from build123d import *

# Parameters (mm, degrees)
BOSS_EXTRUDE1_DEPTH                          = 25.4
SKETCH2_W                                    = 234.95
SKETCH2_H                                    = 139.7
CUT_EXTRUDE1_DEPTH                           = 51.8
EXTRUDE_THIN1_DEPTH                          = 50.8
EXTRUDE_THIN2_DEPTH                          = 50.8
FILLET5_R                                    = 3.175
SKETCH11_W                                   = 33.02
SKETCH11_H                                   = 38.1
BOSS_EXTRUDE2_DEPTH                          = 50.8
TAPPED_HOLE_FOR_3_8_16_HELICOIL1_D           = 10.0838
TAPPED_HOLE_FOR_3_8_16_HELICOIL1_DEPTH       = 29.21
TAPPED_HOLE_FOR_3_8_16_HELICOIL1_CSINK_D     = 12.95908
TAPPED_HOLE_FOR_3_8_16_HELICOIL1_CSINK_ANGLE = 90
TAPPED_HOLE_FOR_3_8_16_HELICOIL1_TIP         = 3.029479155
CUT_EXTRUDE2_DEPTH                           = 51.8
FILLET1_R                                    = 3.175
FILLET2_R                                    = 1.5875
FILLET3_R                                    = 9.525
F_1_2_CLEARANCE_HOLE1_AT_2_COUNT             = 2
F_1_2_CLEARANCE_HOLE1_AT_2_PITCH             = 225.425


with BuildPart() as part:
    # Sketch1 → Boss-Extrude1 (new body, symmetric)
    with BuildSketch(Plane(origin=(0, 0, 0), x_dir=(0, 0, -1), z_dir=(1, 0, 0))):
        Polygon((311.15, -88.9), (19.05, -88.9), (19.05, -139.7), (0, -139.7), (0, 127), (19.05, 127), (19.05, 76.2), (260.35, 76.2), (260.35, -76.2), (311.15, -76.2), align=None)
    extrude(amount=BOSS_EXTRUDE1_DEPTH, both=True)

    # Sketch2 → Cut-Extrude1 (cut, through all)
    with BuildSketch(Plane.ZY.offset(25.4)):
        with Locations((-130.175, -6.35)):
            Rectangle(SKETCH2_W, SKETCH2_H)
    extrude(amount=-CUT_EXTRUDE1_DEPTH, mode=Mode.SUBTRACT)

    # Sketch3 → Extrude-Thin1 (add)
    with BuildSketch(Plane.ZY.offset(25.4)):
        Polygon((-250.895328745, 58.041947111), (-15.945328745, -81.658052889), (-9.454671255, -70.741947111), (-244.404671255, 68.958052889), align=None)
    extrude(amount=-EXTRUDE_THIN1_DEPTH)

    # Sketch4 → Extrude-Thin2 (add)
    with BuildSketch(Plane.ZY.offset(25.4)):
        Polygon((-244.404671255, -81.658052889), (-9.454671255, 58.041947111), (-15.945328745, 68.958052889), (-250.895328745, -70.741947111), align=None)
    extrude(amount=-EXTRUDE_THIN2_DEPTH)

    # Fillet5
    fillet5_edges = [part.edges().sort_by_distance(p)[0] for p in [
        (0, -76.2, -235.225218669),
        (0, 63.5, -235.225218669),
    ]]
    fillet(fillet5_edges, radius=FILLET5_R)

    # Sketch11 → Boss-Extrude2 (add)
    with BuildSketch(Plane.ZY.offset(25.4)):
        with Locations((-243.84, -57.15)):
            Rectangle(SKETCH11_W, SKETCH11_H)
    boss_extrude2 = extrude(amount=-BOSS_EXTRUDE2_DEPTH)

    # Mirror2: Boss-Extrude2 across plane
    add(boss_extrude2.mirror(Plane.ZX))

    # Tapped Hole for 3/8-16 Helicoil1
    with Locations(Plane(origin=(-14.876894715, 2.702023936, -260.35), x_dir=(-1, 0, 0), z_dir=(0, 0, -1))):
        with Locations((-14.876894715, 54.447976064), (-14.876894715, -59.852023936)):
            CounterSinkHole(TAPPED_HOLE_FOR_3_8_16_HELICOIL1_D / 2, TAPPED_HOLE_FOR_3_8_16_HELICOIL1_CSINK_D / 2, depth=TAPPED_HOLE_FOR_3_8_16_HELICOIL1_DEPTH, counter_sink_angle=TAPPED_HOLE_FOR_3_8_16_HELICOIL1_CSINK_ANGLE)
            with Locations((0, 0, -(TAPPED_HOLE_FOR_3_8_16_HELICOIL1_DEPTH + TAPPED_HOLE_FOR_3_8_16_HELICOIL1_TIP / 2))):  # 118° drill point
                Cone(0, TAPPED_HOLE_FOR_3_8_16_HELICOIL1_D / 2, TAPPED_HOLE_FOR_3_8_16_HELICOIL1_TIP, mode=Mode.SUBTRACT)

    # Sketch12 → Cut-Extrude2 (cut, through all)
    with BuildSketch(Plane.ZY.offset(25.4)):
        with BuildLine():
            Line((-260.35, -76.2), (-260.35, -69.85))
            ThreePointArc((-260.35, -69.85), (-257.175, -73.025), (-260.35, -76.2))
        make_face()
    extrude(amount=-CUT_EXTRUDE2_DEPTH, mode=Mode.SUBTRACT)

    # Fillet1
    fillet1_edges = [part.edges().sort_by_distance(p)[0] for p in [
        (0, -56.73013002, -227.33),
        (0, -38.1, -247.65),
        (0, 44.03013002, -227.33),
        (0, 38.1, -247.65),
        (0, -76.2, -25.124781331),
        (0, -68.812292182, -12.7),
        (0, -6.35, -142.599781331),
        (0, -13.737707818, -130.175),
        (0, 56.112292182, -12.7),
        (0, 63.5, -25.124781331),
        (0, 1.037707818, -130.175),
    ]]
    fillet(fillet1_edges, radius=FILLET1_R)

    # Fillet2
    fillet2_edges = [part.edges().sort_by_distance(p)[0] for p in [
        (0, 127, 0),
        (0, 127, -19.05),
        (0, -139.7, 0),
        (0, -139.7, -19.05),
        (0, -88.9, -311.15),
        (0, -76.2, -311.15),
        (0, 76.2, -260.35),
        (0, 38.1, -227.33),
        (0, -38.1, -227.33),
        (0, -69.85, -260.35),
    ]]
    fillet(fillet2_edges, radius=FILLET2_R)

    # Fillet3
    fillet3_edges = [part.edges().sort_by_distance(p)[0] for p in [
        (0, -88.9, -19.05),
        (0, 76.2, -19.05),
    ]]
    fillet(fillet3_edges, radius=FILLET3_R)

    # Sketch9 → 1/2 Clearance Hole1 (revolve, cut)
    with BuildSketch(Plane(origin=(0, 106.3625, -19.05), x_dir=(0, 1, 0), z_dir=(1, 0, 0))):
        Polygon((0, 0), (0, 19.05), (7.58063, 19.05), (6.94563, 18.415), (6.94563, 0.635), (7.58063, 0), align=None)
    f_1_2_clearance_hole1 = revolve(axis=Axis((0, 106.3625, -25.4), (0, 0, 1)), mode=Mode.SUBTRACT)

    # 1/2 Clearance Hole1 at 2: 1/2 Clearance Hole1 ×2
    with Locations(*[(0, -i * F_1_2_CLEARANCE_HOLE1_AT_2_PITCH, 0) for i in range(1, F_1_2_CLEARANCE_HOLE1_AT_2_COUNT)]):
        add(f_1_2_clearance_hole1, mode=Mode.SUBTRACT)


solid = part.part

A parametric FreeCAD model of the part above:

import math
import FreeCAD as App
import Part
import Sketcher

V = App.Vector
Q = App.Units.Quantity


def edges_at(feature, points):
    """Names of the edges that pass closest to the given points."""
    edges = feature.Shape.Edges
    near = lambda p: min(range(len(edges)), key=lambda i: edges[i].distToShape(Part.Vertex(*p))[0])
    return sorted({f"Edge{near(p) + 1}" for p in points})

doc = App.newDocument("Part")
body = doc.addObject("PartDesign::Body", "Body")

sketch1 = doc.addObject("Sketcher::SketchObject", "Sketch")
body.addObject(sketch1)
sketch1.AttachmentSupport = (doc.YZ_Plane, [""])
sketch1.MapMode = "FlatFace"
sketch1.addGeometry([
    Part.LineSegment(V(-89, -19, 0), V(-89, -311, 0)),
    Part.LineSegment(V(-89, -311, 0), V(-76, -311, 0)),
    Part.LineSegment(V(-76, -311, 0), V(-76, -260, 0)),
    Part.LineSegment(V(-76, -260, 0), V(76, -260, 0)),
    Part.LineSegment(V(76, -260, 0), V(76, -19, 0)),
    Part.LineSegment(V(76, -19, 0), V(127, -19, 0)),
    Part.LineSegment(V(127, -19, 0), V(127, 0, 0)),
    Part.LineSegment(V(127, 0, 0), V(-140, 0, 0)),
    Part.LineSegment(V(-140, 0, 0), V(-140, -19, 0)),
    Part.LineSegment(V(-140, -19, 0), V(-89, -19, 0)),
], False)
sketch1.addConstraint([
    Sketcher.Constraint("Coincident", 0, 2, 1, 1),
    Sketcher.Constraint("Coincident", 1, 2, 2, 1),
    Sketcher.Constraint("Coincident", 2, 2, 3, 1),
    Sketcher.Constraint("Coincident", 3, 2, 4, 1),
    Sketcher.Constraint("Coincident", 4, 2, 5, 1),
    Sketcher.Constraint("Coincident", 5, 2, 6, 1),
    Sketcher.Constraint("Coincident", 6, 2, 7, 1),
    Sketcher.Constraint("Coincident", 7, 2, 8, 1),
    Sketcher.Constraint("Coincident", 8, 2, 9, 1),
    Sketcher.Constraint("Coincident", 9, 2, 0, 1),
    Sketcher.Constraint("Vertical", 0),
    Sketcher.Constraint("Horizontal", 1),
    Sketcher.Constraint("Vertical", 2),
    Sketcher.Constraint("Horizontal", 3),
    Sketcher.Constraint("Vertical", 4),
    Sketcher.Constraint("Horizontal", 5),
    Sketcher.Constraint("Vertical", 6),
    Sketcher.Constraint("Horizontal", 7),
    Sketcher.Constraint("Vertical", 8),
    Sketcher.Constraint("Horizontal", 9),
    Sketcher.Constraint("PointOnObject", 6, 2, -1),
    Sketcher.Constraint("Horizontal", 5, 2, 8, 2),
    Sketcher.Constraint("Equal", 5, 9),
    Sketcher.Constraint("Equal", 9, 2),
    Sketcher.Constraint("DistanceX", 3, 1, 3, 2, Q("6 in")),
    Sketcher.Constraint("DistanceX", 5, 1, 5, 2, Q("2 in")),
    Sketcher.Constraint("DistanceX", 1, 1, 1, 2, Q("0.5 in")),
    Sketcher.Constraint("DistanceY", 0, 2, 0, 1, Q("11.5 in")),
    Sketcher.Constraint("DistanceX", 1, 2, -1, 1, Q("3 in")),
    Sketcher.Constraint("DistanceY", 6, 1, 6, 2, Q("0.75 in")),
])
pad1 = doc.addObject("PartDesign::Pad", "Pad")
body.addObject(pad1)
pad1.Profile = sketch1
pad1.Length = Q("2 in")
pad1.Midplane = True

sketch2 = doc.addObject("Sketcher::SketchObject", "Sketch001")
body.addObject(sketch2)
sketch2.AttachmentSupport = (doc.YZ_Plane, [""])
sketch2.MapMode = "FlatFace"
sketch2.AttachmentOffset = App.Placement(V(0, 0, -1 * 25.4), App.Rotation())
sketch2.addGeometry([
    Part.LineSegment(V(64, -248, 0), V(-76, -248, 0)),
    Part.LineSegment(V(-76, -248, 0), V(-76, -13, 0)),
    Part.LineSegment(V(-76, -13, 0), V(64, -13, 0)),
    Part.LineSegment(V(64, -13, 0), V(64, -248, 0)),
], False)
sketch2.addConstraint([
    Sketcher.Constraint("Coincident", 0, 2, 1, 1),
    Sketcher.Constraint("Coincident", 1, 2, 2, 1),
    Sketcher.Constraint("Coincident", 2, 2, 3, 1),
    Sketcher.Constraint("Coincident", 3, 2, 0, 1),
    Sketcher.Constraint("Horizontal", 0),
    Sketcher.Constraint("Vertical", 1),
    Sketcher.Constraint("Horizontal", 2),
    Sketcher.Constraint("Vertical", 3),
    Sketcher.Constraint("DistanceX", 0, 2, 0, 1, Q("5.5 in")),
    Sketcher.Constraint("DistanceX", 0, 2, -1, 1, Q("3 in")),
    Sketcher.Constraint("DistanceY", 1, 1, 1, 2, Q("9.25 in")),
    Sketcher.Constraint("DistanceY", 1, 2, -1, 1, Q("0.5 in")),
])
pocket1 = doc.addObject("PartDesign::Pocket", "Pocket")
body.addObject(pocket1)
pocket1.Profile = sketch2
pocket1.Type = "ThroughAll"
pocket1.Reversed = True

sketch3 = doc.addObject("Sketcher::SketchObject", "Sketch002")
body.addObject(sketch3)
sketch3.AttachmentSupport = (doc.YZ_Plane, [""])
sketch3.MapMode = "FlatFace"
sketch3.AttachmentOffset = App.Placement(V(0, 0, -1 * 25.4), App.Rotation())
sketch3.addGeometry([
    Part.LineSegment(V(58, -251, 0), V(-82, -16, 0)),
    Part.LineSegment(V(-82, -16, 0), V(-71, -9, 0)),
    Part.LineSegment(V(-71, -9, 0), V(69, -244, 0)),
    Part.LineSegment(V(69, -244, 0), V(58, -251, 0)),
], False)
sketch3.addConstraint([
    Sketcher.Constraint("Coincident", 0, 2, 1, 1),
    Sketcher.Constraint("Coincident", 1, 2, 2, 1),
    Sketcher.Constraint("Coincident", 2, 2, 3, 1),
    Sketcher.Constraint("Coincident", 3, 2, 0, 1),
    Sketcher.Constraint("Perpendicular", 0, 1),
    Sketcher.Constraint("Perpendicular", 1, 2),
    Sketcher.Constraint("Perpendicular", 2, 3),
    Sketcher.Constraint("Distance", 1, Q("0.5 in")),
    Sketcher.Constraint("DistanceX", 1, 2, 2, 2, Q("5.5 in")),
    Sketcher.Constraint("DistanceY", 2, 2, 1, 2, Q("9.25 in")),
    Sketcher.Constraint("DistanceY", 0, 2, -1, 1, 15.945329),
    Sketcher.Constraint("DistanceX", 0, 2, -1, 1, 81.658053),
])
pad2 = doc.addObject("PartDesign::Pad", "Pad001")
body.addObject(pad2)
pad2.Profile = sketch3
pad2.Length = Q("2 in")

sketch4 = doc.addObject("Sketcher::SketchObject", "Sketch003")
body.addObject(sketch4)
sketch4.AttachmentSupport = (doc.YZ_Plane, [""])
sketch4.MapMode = "FlatFace"
sketch4.AttachmentOffset = App.Placement(V(0, 0, -1 * 25.4), App.Rotation())
sketch4.addGeometry([
    Part.LineSegment(V(-82, -244, 0), V(58, -9, 0)),
    Part.LineSegment(V(58, -9, 0), V(69, -16, 0)),
    Part.LineSegment(V(69, -16, 0), V(-71, -251, 0)),
    Part.LineSegment(V(-71, -251, 0), V(-82, -244, 0)),
], False)
sketch4.addConstraint([
    Sketcher.Constraint("Coincident", 0, 2, 1, 1),
    Sketcher.Constraint("Coincident", 1, 2, 2, 1),
    Sketcher.Constraint("Coincident", 2, 2, 3, 1),
    Sketcher.Constraint("Coincident", 3, 2, 0, 1),
    Sketcher.Constraint("Perpendicular", 0, 1),
    Sketcher.Constraint("Perpendicular", 1, 2),
    Sketcher.Constraint("Perpendicular", 2, 3),
    Sketcher.Constraint("Distance", 1, Q("0.5 in")),
    Sketcher.Constraint("DistanceX", 2, 2, 1, 2, Q("5.5 in")),
    Sketcher.Constraint("DistanceY", 2, 2, 1, 2, Q("9.25 in")),
    Sketcher.Constraint("DistanceY", 0, 2, -1, 1, 9.454671),
    Sketcher.Constraint("DistanceX", -1, 1, 0, 2, 58.041947),
])
pad3 = doc.addObject("PartDesign::Pad", "Pad002")
body.addObject(pad3)
pad3.Profile = sketch4
pad3.Length = Q("2 in")
doc.recompute()

fillet = doc.addObject("PartDesign::Fillet", "Fillet")
body.addObject(fillet)
fillet.Base = (pad3, edges_at(pad3, [(0, -76.2, -235.225), (0, 63.5, -235.225)]))
fillet.Radius = Q("0.125 in")

sketch5 = doc.addObject("Sketcher::SketchObject", "Sketch004")
body.addObject(sketch5)
sketch5.AttachmentSupport = (doc.YZ_Plane, [""])
sketch5.MapMode = "FlatFace"
sketch5.AttachmentOffset = App.Placement(V(0, 0, -1 * 25.4), App.Rotation())
sketch5.addGeometry([
    Part.LineSegment(V(-38, -260, 0), V(-76, -260, 0)),
    Part.LineSegment(V(-76, -260, 0), V(-76, -227, 0)),
    Part.LineSegment(V(-76, -227, 0), V(-38, -227, 0)),
    Part.LineSegment(V(-38, -227, 0), V(-38, -260, 0)),
], False)
sketch5.addConstraint([
    Sketcher.Constraint("Coincident", 0, 2, 1, 1),
    Sketcher.Constraint("Coincident", 1, 2, 2, 1),
    Sketcher.Constraint("Coincident", 2, 2, 3, 1),
    Sketcher.Constraint("Coincident", 3, 2, 0, 1),
    Sketcher.Constraint("Horizontal", 0),
    Sketcher.Constraint("Vertical", 1),
    Sketcher.Constraint("Horizontal", 2),
    Sketcher.Constraint("Vertical", 3),
    Sketcher.Constraint("DistanceX", 0, 2, 0, 1, Q("1.5 in")),
    Sketcher.Constraint("DistanceY", 1, 1, 1, 2, Q("1.3 in")),
    Sketcher.Constraint("DistanceX", 0, 2, -1, 1, Q("3 in")),
    Sketcher.Constraint("DistanceY", 0, 2, -1, 1, Q("10.25 in")),
])
pad4 = doc.addObject("PartDesign::Pad", "Pad003")
body.addObject(pad4)
pad4.Profile = sketch5
pad4.Length = Q("2 in")
doc.recompute()

mirrored = doc.addObject("PartDesign::Mirrored", "Mirrored")
body.addObject(mirrored)
mirrored.Originals = [pad4]
mirrored.MirrorPlane = (doc.XZ_Plane, [""])
body.Tip = mirrored

sketch6 = doc.addObject("Sketcher::SketchObject", "Sketch005")
body.addObject(sketch6)
sketch6.AttachmentSupport = (doc.XY_Plane, [""])
sketch6.MapMode = "FlatFace"
sketch6.AttachmentOffset = App.Placement(V(0, 0, -10.25 * 25.4), App.Rotation())
sketch6.addGeometry([
    Part.Circle(V(0, 57, 0), V(0, 0, 1), 5),
    Part.Circle(V(0, -57, 0), V(0, 0, 1), 5),
], False)
sketch6.addConstraint([
    Sketcher.Constraint("Equal", 0, 1),
    Sketcher.Constraint("Symmetric", 0, 3, 1, 3, -1, 1),
    Sketcher.Constraint("PointOnObject", 0, 3, -2),
    Sketcher.Constraint("Diameter", 0, Q("0.397 in")),
    Sketcher.Constraint("DistanceY", 1, 3, 0, 3, Q("4.5 in")),
])
doc.recompute()
hole = doc.addObject("PartDesign::Hole", "Hole")
body.addObject(hole)
hole.Profile = sketch6
hole.ThreadType = "None"
hole.Diameter = Q("0.397 in")
hole.DepthType = "Dimension"
hole.Depth = Q("1.15 in")
hole.DrillPoint = "Angled"
hole.DrillPointAngle = 118
hole.HoleCutType = "Countersink"
hole.HoleCutDiameter = Q("0.5102 in")
hole.HoleCutCountersinkAngle = 90
hole.Reversed = True

sketch7 = doc.addObject("Sketcher::SketchObject", "Sketch006")
body.addObject(sketch7)
sketch7.AttachmentSupport = (doc.YZ_Plane, [""])
sketch7.MapMode = "FlatFace"
sketch7.AttachmentOffset = App.Placement(V(0, 0, -1 * 25.4), App.Rotation())
sketch7.addGeometry([
    Part.LineSegment(V(-69.8, -260.4, 0), V(-76.2, -260.4, 0)),
    Part.ArcOfCircle(Part.Circle(V(-73, -260.4, 0), V(0, 0, 1), 3.2), math.radians(0), math.radians(180)),
], False)
sketch7.addConstraint([
    Sketcher.Constraint("Coincident", 0, 1, 1, 1),
    Sketcher.Constraint("Coincident", 1, 2, 0, 2),
    Sketcher.Constraint("Horizontal", 0),
    Sketcher.Constraint("Horizontal", 1, 3, 0, 1),
    Sketcher.Constraint("DistanceX", 1, 2, -1, 1, Q("3 in")),
    Sketcher.Constraint("Radius", 1, Q("0.125 in")),
    Sketcher.Constraint("DistanceY", 1, 3, -1, 1, Q("10.25 in")),
])
pocket2 = doc.addObject("PartDesign::Pocket", "Pocket001")
body.addObject(pocket2)
pocket2.Profile = sketch7
pocket2.Type = "ThroughAll"
pocket2.Reversed = True
doc.recompute()

fillet2 = doc.addObject("PartDesign::Fillet", "Fillet001")
body.addObject(fillet2)
fillet2.Base = (pocket2, edges_at(pocket2, [
    (0, -56.73, -227.33),
    (0, -38.1, -247.65),
    (0, 44.03, -227.33),
    (0, 38.1, -247.65),
    (0, -76.2, -25.125),
    (0, -68.812, -12.7),
    (0, -6.35, -142.6),
    (0, -13.738, -130.175),
    (0, 56.112, -12.7),
    (0, 63.5, -25.125),
    (0, 1.038, -130.175),
]))
fillet2.Radius = Q("0.125 in")
doc.recompute()

fillet3 = doc.addObject("PartDesign::Fillet", "Fillet002")
body.addObject(fillet3)
fillet3.Base = (fillet2, edges_at(fillet2, [
    (0, 127, 0),
    (0, 127, -19.05),
    (0, -139.7, 0),
    (0, -139.7, -19.05),
    (0, -88.9, -311.15),
    (0, -76.2, -311.15),
    (0, 76.2, -260.35),
    (0, 38.1, -227.33),
    (0, -38.1, -227.33),
    (0, -69.85, -260.35),
]))
fillet3.Radius = Q("0.0625 in")
doc.recompute()

fillet4 = doc.addObject("PartDesign::Fillet", "Fillet003")
body.addObject(fillet4)
fillet4.Base = (fillet3, edges_at(fillet3, [(0, -88.9, -19.05), (0, 76.2, -19.05)]))
fillet4.Radius = Q("0.375 in")

sketch8 = doc.addObject("Sketcher::SketchObject", "Sketch007")
body.addObject(sketch8)
sketch8.AttachmentSupport = (doc.YZ_Plane, [""])
sketch8.MapMode = "FlatFace"
sketch8.addGeometry([
    Part.LineSegment(V(106.4, 0, 0), V(106.4, -19.1, 0)),
    Part.LineSegment(V(106.4, -19.1, 0), V(113.9, -19.1, 0)),
    Part.LineSegment(V(113.9, -19.1, 0), V(113.3, -18.4, 0)),
    Part.LineSegment(V(113.3, -18.4, 0), V(113.3, -0.6, 0)),
    Part.LineSegment(V(113.3, -0.6, 0), V(113.9, 0, 0)),
    Part.LineSegment(V(113.9, 0, 0), V(106.4, 0, 0)),
], False)
sketch8.addGeometry(Part.LineSegment(V(106.4, -19.1, 0), V(106.4, 0, 0)), True)
sketch8.addConstraint([
    Sketcher.Constraint("Coincident", 0, 2, 1, 1),
    Sketcher.Constraint("Coincident", 1, 2, 2, 1),
    Sketcher.Constraint("Coincident", 2, 2, 3, 1),
    Sketcher.Constraint("Coincident", 3, 2, 4, 1),
    Sketcher.Constraint("Coincident", 4, 2, 5, 1),
    Sketcher.Constraint("Coincident", 5, 2, 0, 1),
    Sketcher.Constraint("Vertical", 0),
    Sketcher.Constraint("Horizontal", 1),
    Sketcher.Constraint("Vertical", 3),
    Sketcher.Constraint("Horizontal", 5),
    Sketcher.Constraint("Vertical", 6),
    Sketcher.Constraint("Coincident", 6, 1, 0, 2),
    Sketcher.Constraint("PointOnObject", 4, 2, -1),
    Sketcher.Constraint("PointOnObject", 6, 2, -1),
    Sketcher.Constraint("Perpendicular", 2, 4),
    Sketcher.Constraint("Vertical", 1, 2, 4, 2),
    Sketcher.Constraint("Equal", 2, 4),
    Sketcher.Constraint("DistanceY", 3, 1, 3, 2, Q("0.7 in")),
    Sketcher.Constraint("DistanceY", 0, 2, 0, 1, Q("0.75 in")),
    Sketcher.Constraint("DistanceX", -1, 1, 0, 2, Q("4.1875 in")),
    Sketcher.Constraint("DistanceX", 1, 1, 1, 2, 7.58063),
])
groove = doc.addObject("PartDesign::Groove", "Groove")
body.addObject(groove)
groove.Profile = sketch8
groove.ReferenceAxis = (sketch8, ["Axis0"])
groove.Angle = 360
doc.recompute()

linearpattern = doc.addObject("PartDesign::LinearPattern", "LinearPattern")
body.addObject(linearpattern)
linearpattern.Originals = [groove]
linearpattern.Direction = (doc.Y_Axis, [""])
linearpattern.Mode = "offset"
linearpattern.Offset = Q("8.875 in")
linearpattern.Occurrences = 2
linearpattern.Reversed = True
body.Tip = linearpattern

doc.recompute()
